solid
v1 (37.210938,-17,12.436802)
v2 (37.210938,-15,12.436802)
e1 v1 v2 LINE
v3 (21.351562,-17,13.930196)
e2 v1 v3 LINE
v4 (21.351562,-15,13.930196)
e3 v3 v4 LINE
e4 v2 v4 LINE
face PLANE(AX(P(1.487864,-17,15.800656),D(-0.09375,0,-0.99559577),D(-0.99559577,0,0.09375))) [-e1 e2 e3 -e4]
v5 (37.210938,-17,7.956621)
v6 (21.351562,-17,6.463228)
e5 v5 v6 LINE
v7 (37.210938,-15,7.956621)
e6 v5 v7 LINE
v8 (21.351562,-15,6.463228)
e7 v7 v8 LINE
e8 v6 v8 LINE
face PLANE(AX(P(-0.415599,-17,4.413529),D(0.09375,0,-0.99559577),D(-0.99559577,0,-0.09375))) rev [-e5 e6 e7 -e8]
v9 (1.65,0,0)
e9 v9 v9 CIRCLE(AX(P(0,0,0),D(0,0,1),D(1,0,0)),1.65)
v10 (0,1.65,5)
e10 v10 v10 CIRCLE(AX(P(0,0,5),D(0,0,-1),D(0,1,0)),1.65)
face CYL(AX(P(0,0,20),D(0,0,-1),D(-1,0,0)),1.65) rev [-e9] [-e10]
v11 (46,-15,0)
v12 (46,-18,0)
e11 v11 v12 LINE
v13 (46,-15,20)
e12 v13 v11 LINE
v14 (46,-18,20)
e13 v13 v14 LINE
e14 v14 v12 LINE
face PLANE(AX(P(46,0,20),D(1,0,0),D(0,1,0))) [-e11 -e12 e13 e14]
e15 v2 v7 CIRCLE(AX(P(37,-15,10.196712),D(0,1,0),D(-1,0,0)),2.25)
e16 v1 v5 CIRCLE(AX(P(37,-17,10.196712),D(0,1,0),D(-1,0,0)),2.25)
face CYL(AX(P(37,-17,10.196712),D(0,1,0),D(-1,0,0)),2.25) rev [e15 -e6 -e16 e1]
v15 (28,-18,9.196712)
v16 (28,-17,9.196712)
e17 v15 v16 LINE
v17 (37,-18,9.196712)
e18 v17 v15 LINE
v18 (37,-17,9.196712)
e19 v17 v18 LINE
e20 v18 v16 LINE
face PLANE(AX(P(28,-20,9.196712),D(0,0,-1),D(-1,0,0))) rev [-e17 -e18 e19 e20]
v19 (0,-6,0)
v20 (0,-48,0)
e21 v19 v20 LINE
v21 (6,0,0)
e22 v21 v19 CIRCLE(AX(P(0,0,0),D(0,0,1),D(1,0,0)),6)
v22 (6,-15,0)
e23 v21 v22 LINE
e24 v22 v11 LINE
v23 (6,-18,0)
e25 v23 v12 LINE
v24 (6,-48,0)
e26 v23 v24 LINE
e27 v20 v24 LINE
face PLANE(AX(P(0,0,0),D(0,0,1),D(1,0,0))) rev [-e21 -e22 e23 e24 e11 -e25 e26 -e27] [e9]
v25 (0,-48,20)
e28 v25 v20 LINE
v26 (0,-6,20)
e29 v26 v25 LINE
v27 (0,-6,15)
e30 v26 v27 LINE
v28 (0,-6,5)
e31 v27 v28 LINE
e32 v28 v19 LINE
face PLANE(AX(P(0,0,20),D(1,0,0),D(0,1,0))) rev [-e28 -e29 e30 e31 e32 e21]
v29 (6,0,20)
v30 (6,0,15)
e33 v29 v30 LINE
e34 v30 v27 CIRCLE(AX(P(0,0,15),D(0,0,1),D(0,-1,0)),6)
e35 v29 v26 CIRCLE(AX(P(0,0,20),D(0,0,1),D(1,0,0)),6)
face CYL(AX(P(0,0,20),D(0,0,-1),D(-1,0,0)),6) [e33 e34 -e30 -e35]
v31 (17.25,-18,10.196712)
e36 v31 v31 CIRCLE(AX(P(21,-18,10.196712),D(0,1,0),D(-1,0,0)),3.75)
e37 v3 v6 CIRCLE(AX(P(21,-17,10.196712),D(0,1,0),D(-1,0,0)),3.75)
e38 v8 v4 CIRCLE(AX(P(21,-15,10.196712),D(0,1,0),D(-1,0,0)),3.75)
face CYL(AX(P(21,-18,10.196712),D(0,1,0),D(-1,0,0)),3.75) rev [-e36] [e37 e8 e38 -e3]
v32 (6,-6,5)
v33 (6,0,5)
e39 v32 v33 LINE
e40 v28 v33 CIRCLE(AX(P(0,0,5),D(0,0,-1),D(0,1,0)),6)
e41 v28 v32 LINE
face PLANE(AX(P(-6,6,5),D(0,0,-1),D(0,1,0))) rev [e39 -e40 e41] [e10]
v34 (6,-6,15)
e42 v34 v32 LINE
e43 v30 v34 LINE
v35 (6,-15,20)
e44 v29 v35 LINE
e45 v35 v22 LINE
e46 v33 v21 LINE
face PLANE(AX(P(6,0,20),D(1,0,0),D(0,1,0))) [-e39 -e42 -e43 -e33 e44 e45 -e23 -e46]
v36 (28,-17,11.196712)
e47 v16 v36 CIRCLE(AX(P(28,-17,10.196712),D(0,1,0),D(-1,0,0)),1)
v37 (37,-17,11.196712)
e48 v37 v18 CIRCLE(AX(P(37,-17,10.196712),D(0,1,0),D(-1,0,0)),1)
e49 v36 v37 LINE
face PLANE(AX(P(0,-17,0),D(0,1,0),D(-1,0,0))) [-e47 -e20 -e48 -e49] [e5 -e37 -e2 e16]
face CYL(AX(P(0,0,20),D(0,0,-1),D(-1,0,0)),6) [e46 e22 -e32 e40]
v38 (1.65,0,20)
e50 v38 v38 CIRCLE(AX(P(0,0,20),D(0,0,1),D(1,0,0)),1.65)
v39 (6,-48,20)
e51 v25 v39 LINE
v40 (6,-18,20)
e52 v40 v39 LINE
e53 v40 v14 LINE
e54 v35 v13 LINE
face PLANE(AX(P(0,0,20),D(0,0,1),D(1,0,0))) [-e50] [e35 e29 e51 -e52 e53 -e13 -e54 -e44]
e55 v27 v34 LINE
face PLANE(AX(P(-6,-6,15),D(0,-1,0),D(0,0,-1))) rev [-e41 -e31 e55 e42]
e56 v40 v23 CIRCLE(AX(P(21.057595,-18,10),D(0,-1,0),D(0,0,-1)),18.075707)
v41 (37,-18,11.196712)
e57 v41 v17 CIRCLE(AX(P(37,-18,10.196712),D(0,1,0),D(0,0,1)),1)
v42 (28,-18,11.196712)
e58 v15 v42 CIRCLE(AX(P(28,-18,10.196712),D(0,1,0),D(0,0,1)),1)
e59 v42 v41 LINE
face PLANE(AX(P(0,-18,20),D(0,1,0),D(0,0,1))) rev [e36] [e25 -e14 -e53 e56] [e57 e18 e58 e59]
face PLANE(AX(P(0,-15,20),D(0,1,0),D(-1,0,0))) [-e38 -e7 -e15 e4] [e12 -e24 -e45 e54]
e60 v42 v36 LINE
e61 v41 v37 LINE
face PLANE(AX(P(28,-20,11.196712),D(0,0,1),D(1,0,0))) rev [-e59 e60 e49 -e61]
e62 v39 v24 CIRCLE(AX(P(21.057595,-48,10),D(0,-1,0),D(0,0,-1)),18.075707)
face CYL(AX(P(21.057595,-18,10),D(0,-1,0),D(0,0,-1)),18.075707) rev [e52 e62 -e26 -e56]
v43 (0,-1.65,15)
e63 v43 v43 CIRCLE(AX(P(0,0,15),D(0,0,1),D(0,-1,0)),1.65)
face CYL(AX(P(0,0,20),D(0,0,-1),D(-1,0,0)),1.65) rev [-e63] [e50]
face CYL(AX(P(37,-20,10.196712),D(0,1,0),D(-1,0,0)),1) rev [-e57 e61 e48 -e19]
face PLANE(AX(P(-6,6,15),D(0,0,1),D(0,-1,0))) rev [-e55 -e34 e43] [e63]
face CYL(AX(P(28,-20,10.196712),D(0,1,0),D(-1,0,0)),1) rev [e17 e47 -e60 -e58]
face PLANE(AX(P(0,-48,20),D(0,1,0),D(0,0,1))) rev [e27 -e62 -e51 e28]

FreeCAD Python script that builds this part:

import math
import FreeCAD as App
import Part
import Sketcher
from FreeCAD import Vector
Q = App.Units.Quantity


def add_polygon(sketch, points):
    """Adds a closed chain of lines whose ends are joined by coincident constraints."""
    first, n = sketch.GeometryCount, len(points)
    for a, b in zip(points, points[1:] + points[:1]):
        sketch.addGeometry(Part.LineSegment(App.Vector(*a, 0), App.Vector(*b, 0)), False)
    for i in range(n):
        sketch.addConstraint(Sketcher.Constraint("Coincident", first + i, 2, first + (i + 1) % n, 1))

doc = App.newDocument("Part")
params = doc.addObject("Spreadsheet::Sheet", "Params")
for row, (alias, value) in enumerate([
    ("sketch1_radius", "6 mm"),
    ("sketch1_width", "40 mm"),
    ("sketch1_height", "42 mm"),
    ("sketch1_height2", "30 mm"),
    ("sketch1_height3", "3 mm"),
    ("pad1_length", "20 mm"),
    ("sketch2_radius", "3.75 mm"),
    ("sketch2_radius2", "2.25 mm"),
    ("pocket1_length", "2 mm"),
    ("sketch3_diameter", "7.5 mm"),
    ("pocket2_length", "3 mm"),
    ("sketch4_radius", "1 mm"),
    ("sketch4_width", "9 mm"),
    ("pocket3_length", "3 mm"),
    ("sketch5_width", "12 mm"),
    ("sketch5_height", "10 mm"),
    ("pocket4_length", "12 mm"),
    ("sketch6_height", "20 mm"),
    ("pocket5_length", "30 mm"),
], start=1):
    params.set(f"A{row}", alias)
    params.set(f"B{row}", "=" + value)
    params.setAlias(f"B{row}", alias)

body = doc.addObject("PartDesign::Body", "Body")

# Sketch on XY plane
sketch1 = doc.addObject("Sketcher::SketchObject", "Sketch")
body.addObject(sketch1)
sketch1.AttachmentSupport = (doc.XY_Plane, [""])
sketch1.MapMode = "FlatFace"
sketch1.addGeometry([
    Part.ArcOfCircle(Part.Circle(Vector(0, 0, 0), Vector(0, 0, 1), 6), math.radians(0), math.radians(270)),  # 0
    Part.LineSegment(Vector(0, -6, 0), Vector(0, -48, 0)),  # 1
    Part.LineSegment(Vector(0, -48, 0), Vector(6, -48, 0)),  # 2
    Part.LineSegment(Vector(6, -48, 0), Vector(6, -18, 0)),  # 3
    Part.LineSegment(Vector(6, -18, 0), Vector(46, -18, 0)),  # 4
    Part.LineSegment(Vector(46, -18, 0), Vector(46, -15, 0)),  # 5
    Part.LineSegment(Vector(46, -15, 0), Vector(6, -15, 0)),  # 6
    Part.LineSegment(Vector(6, -15, 0), Vector(6, 0, 0)),  # 7
    Part.ArcOfCircle(Part.Circle(Vector(0, 0, 0), Vector(0, 0, 1), 1.6), math.radians(0), math.radians(270)),  # 8
    Part.ArcOfCircle(Part.Circle(Vector(0, 0, 0), Vector(0, 0, 1), 1.6), math.radians(-90), math.radians(0)),  # 9
], False)
sketch1.addConstraint([
    Sketcher.Constraint("Coincident", 0, 2, 1, 1),
    Sketcher.Constraint("Coincident", 1, 2, 2, 1),
    Sketcher.Constraint("Coincident", 2, 2, 3, 1),
    Sketcher.Constraint("Coincident", 3, 2, 4, 1),
    Sketcher.Constraint("Coincident", 4, 2, 5, 1),
    Sketcher.Constraint("Coincident", 5, 2, 6, 1),
    Sketcher.Constraint("Coincident", 6, 2, 7, 1),
    Sketcher.Constraint("Tangent", 7, 2, 0, 1),
    Sketcher.Constraint("Tangent", 8, 1, 9, 2),
    Sketcher.Constraint("Coincident", 9, 1, 8, 2),
    Sketcher.Constraint("Vertical", 1),
    Sketcher.Constraint("Horizontal", 2),
    Sketcher.Constraint("Vertical", 3),
    Sketcher.Constraint("Horizontal", 4),
    Sketcher.Constraint("Vertical", 5),
    Sketcher.Constraint("Horizontal", 6),
    Sketcher.Constraint("Vertical", 7),
    Sketcher.Constraint("Coincident", 0, 3, -1, 1),
    Sketcher.Constraint("Coincident", 8, 3, -1, 1),
    Sketcher.Constraint("PointOnObject", 0, 2, -2),
    Sketcher.Constraint("PointOnObject", 8, 1, -1),
    Sketcher.Constraint("PointOnObject", 9, 1, -2),
    Sketcher.Constraint("Vertical", 3, 2, 6, 2),
    Sketcher.Constraint("Radius", 0, Q("6 mm")),
    Sketcher.Constraint("DistanceX", 4, 1, 4, 2, Q("40 mm")),
    Sketcher.Constraint("DistanceY", 1, 2, 1, 1, Q("42 mm")),
    Sketcher.Constraint("DistanceY", 3, 1, 3, 2, Q("30 mm")),
    Sketcher.Constraint("DistanceY", 5, 1, 5, 2, Q("3 mm")),
    Sketcher.Constraint("Radius", 8, Q("1.65 mm")),
])
sketch1.setExpression("Constraints[23]", "Params.sketch1_radius")
sketch1.setExpression("Constraints[24]", "Params.sketch1_width")
sketch1.setExpression("Constraints[25]", "Params.sketch1_height")
sketch1.setExpression("Constraints[26]", "Params.sketch1_height2")
sketch1.setExpression("Constraints[27]", "Params.sketch1_height3")
pad1 = doc.addObject("PartDesign::Pad", "Pad")
body.addObject(pad1)
pad1.Profile = sketch1
pad1.setExpression("Length", "Params.pad1_length")

# Sketch on XZ plane
sketch2 = doc.addObject("Sketcher::SketchObject", "Sketch001")
body.addObject(sketch2)
sketch2.AttachmentSupport = (doc.XZ_Plane, [""])
sketch2.MapMode = "FlatFace"
sketch2.AttachmentOffset = App.Placement(Vector(0, 0, 15), App.Rotation())
sketch2.addGeometry([
    Part.LineSegment(Vector(37.2, 8, 0), Vector(21.4, 6.5, 0)),  # 0
    Part.ArcOfCircle(Part.Circle(Vector(21, 10.2, 0), Vector(0, 0, 1), 3.8), math.radians(-85), math.radians(0)),  # 1
    Part.ArcOfCircle(Part.Circle(Vector(21, 10.2, 0), Vector(0, 0, 1), 3.8), math.radians(0), math.radians(85)),  # 2
    Part.LineSegment(Vector(21.4, 13.9, 0), Vector(37.2, 12.4, 0)),  # 3
    Part.ArcOfCircle(Part.Circle(Vector(37, 10.2, 0), Vector(0, 0, 1), 2.2), math.radians(-85), math.radians(85)),  # 4
], False)
sketch2.addConstraint([
    Sketcher.Constraint("Tangent", 0, 2, 1, 1),
    Sketcher.Constraint("Tangent", 1, 2, 2, 1),
    Sketcher.Constraint("Tangent", 2, 2, 3, 1),
    Sketcher.Constraint("Tangent", 3, 2, 4, 2),
    Sketcher.Constraint("Tangent", 4, 1, 0, 1),
    Sketcher.Constraint("Equal", 1, 2),
    Sketcher.Constraint("Horizontal", 2, 3, 4, 3),
    Sketcher.Constraint("Horizontal", 4, 3, 1, 2),
    Sketcher.Constraint("Radius", 1, Q("3.75 mm")),
    Sketcher.Constraint("Radius", 4, Q("2.25 mm")),
    Sketcher.Constraint("DistanceX", -1, 1, 1, 3, Q("21 mm")),
    Sketcher.Constraint("DistanceX", -1, 1, 4, 3, Q("37 mm")),
    Sketcher.Constraint("DistanceY", -1, 1, 1, 3, Q("10.196712 mm")),
])
sketch2.setExpression("Constraints[8]", "Params.sketch2_radius")
sketch2.setExpression("Constraints[9]", "Params.sketch2_radius2")
pocket1 = doc.addObject("PartDesign::Pocket", "Pocket")
body.addObject(pocket1)
pocket1.Profile = sketch2
pocket1.setExpression("Length", "Params.pocket1_length")
pocket1.Reversed = True

# Sketch on XZ plane
sketch3 = doc.addObject("Sketcher::SketchObject", "Sketch002")
body.addObject(sketch3)
sketch3.AttachmentSupport = (doc.XZ_Plane, [""])
sketch3.MapMode = "FlatFace"
sketch3.AttachmentOffset = App.Placement(Vector(0, 0, 15), App.Rotation())
sketch3.addGeometry(Part.Circle(Vector(21, 10.2, 0), Vector(0, 0, 1), 3.8), False)
sketch3.addConstraint([
    Sketcher.Constraint("Diameter", 0, Q("7.5 mm")),
    Sketcher.Constraint("DistanceX", -1, 1, 0, 3, Q("21 mm")),
    Sketcher.Constraint("DistanceY", -1, 1, 0, 3, Q("10.196712 mm")),
])
sketch3.setExpression("Constraints[0]", "Params.sketch3_diameter")
pocket2 = doc.addObject("PartDesign::Pocket", "Pocket001")
body.addObject(pocket2)
pocket2.Profile = sketch3
pocket2.setExpression("Length", "Params.pocket2_length")
pocket2.Reversed = True

# Sketch on XZ plane
sketch4 = doc.addObject("Sketcher::SketchObject", "Sketch003")
body.addObject(sketch4)
sketch4.AttachmentSupport = (doc.XZ_Plane, [""])
sketch4.MapMode = "FlatFace"
sketch4.AttachmentOffset = App.Placement(Vector(0, 0, 17), App.Rotation())
sketch4.addGeometry([
    Part.LineSegment(Vector(37, 9.2, 0), Vector(28, 9.2, 0)),
    Part.ArcOfCircle(Part.Circle(Vector(28, 10.2, 0), Vector(0, 0, 1), 1), math.radians(90), math.radians(270)),
    Part.LineSegment(Vector(28, 11.2, 0), Vector(37, 11.2, 0)),
    Part.ArcOfCircle(Part.Circle(Vector(37, 10.2, 0), Vector(0, 0, 1), 1), math.radians(-90), math.radians(90)),
], False)
sketch4.addConstraint([
    Sketcher.Constraint("Tangent", 0, 2, 1, 2),
    Sketcher.Constraint("Tangent", 1, 1, 2, 1),
    Sketcher.Constraint("Tangent", 2, 2, 3, 2),
    Sketcher.Constraint("Tangent", 3, 1, 0, 1),
    Sketcher.Constraint("Horizontal", 0),
    Sketcher.Constraint("Horizontal", 2),
    Sketcher.Constraint("Radius", 1, Q("1 mm")),
    Sketcher.Constraint("DistanceX", 0, 2, 0, 1, Q("9 mm")),
    Sketcher.Constraint("DistanceX", -1, 1, 1, 3, Q("28 mm")),
    Sketcher.Constraint("DistanceY", -1, 1, 1, 3, Q("10.196712 mm")),
])
sketch4.setExpression("Constraints[6]", "Params.sketch4_radius")
sketch4.setExpression("Constraints[7]", "Params.sketch4_width")
pocket3 = doc.addObject("PartDesign::Pocket", "Pocket002")
body.addObject(pocket3)
pocket3.Profile = sketch4
pocket3.setExpression("Length", "Params.pocket3_length")
pocket3.Reversed = True

# Sketch on YZ plane
sketch5 = doc.addObject("Sketcher::SketchObject", "Sketch004")
body.addObject(sketch5)
sketch5.AttachmentSupport = (doc.YZ_Plane, [""])
sketch5.MapMode = "FlatFace"
sketch5.AttachmentOffset = App.Placement(Vector(0, 0, 6), App.Rotation())
add_polygon(sketch5, [(6, 15), (-6, 15), (-6, 5), (6, 5)])  # lines 0-3
sketch5.addConstraint([
    Sketcher.Constraint("Horizontal", 0),
    Sketcher.Constraint("Vertical", 1),
    Sketcher.Constraint("Horizontal", 2),
    Sketcher.Constraint("Vertical", 3),
    Sketcher.Constraint("DistanceX", 0, 2, 0, 1, Q("12 mm")),
    Sketcher.Constraint("DistanceY", 1, 2, 1, 1, Q("10 mm")),
    Sketcher.Constraint("DistanceX", 0, 2, -1, 1, Q("6 mm")),
    Sketcher.Constraint("DistanceY", -1, 1, 0, 2, Q("15 mm")),
])
sketch5.setExpression("Constraints[8]", "Params.sketch5_width")
sketch5.setExpression("Constraints[9]", "Params.sketch5_height")
pocket4 = doc.addObject("PartDesign::Pocket", "Pocket003")
body.addObject(pocket4)
pocket4.Profile = sketch5
pocket4.setExpression("Length", "Params.pocket4_length")

# Sketch on XZ plane
sketch6 = doc.addObject("Sketcher::SketchObject", "Sketch005")
body.addObject(sketch6)
sketch6.AttachmentSupport = (doc.XZ_Plane, [""])
sketch6.MapMode = "FlatFace"
sketch6.AttachmentOffset = App.Placement(Vector(0, 0, 48), App.Rotation())
sketch6.addGeometry([
    Part.LineSegment(Vector(6, 0, 0), Vector(6, 20, 0)),
    Part.ArcOfCircle(Part.Circle(Vector(21, 10, 0), Vector(0, 0, 1), 18), math.radians(146), math.radians(214)),
], False)
sketch6.addConstraint([
    Sketcher.Constraint("Coincident", 0, 1, 1, 2),
    Sketcher.Constraint("Coincident", 1, 1, 0, 2),
    Sketcher.Constraint("Vertical", 0),
    Sketcher.Constraint("PointOnObject", 0, 1, -1),
    Sketcher.Constraint("DistanceY", 0, 1, 0, 2, Q("20 mm")),
    Sketcher.Constraint("DistanceX", -1, 1, 0, 1, Q("6 mm")),
    Sketcher.Constraint("Radius", 1, Q("18.075707 mm")),
])
sketch6.setExpression("Constraints[4]", "Params.sketch6_height")
pocket5 = doc.addObject("PartDesign::Pocket", "Pocket004")
body.addObject(pocket5)
pocket5.Profile = sketch6
pocket5.setExpression("Length", "Params.pocket5_length")

doc.recompute()
